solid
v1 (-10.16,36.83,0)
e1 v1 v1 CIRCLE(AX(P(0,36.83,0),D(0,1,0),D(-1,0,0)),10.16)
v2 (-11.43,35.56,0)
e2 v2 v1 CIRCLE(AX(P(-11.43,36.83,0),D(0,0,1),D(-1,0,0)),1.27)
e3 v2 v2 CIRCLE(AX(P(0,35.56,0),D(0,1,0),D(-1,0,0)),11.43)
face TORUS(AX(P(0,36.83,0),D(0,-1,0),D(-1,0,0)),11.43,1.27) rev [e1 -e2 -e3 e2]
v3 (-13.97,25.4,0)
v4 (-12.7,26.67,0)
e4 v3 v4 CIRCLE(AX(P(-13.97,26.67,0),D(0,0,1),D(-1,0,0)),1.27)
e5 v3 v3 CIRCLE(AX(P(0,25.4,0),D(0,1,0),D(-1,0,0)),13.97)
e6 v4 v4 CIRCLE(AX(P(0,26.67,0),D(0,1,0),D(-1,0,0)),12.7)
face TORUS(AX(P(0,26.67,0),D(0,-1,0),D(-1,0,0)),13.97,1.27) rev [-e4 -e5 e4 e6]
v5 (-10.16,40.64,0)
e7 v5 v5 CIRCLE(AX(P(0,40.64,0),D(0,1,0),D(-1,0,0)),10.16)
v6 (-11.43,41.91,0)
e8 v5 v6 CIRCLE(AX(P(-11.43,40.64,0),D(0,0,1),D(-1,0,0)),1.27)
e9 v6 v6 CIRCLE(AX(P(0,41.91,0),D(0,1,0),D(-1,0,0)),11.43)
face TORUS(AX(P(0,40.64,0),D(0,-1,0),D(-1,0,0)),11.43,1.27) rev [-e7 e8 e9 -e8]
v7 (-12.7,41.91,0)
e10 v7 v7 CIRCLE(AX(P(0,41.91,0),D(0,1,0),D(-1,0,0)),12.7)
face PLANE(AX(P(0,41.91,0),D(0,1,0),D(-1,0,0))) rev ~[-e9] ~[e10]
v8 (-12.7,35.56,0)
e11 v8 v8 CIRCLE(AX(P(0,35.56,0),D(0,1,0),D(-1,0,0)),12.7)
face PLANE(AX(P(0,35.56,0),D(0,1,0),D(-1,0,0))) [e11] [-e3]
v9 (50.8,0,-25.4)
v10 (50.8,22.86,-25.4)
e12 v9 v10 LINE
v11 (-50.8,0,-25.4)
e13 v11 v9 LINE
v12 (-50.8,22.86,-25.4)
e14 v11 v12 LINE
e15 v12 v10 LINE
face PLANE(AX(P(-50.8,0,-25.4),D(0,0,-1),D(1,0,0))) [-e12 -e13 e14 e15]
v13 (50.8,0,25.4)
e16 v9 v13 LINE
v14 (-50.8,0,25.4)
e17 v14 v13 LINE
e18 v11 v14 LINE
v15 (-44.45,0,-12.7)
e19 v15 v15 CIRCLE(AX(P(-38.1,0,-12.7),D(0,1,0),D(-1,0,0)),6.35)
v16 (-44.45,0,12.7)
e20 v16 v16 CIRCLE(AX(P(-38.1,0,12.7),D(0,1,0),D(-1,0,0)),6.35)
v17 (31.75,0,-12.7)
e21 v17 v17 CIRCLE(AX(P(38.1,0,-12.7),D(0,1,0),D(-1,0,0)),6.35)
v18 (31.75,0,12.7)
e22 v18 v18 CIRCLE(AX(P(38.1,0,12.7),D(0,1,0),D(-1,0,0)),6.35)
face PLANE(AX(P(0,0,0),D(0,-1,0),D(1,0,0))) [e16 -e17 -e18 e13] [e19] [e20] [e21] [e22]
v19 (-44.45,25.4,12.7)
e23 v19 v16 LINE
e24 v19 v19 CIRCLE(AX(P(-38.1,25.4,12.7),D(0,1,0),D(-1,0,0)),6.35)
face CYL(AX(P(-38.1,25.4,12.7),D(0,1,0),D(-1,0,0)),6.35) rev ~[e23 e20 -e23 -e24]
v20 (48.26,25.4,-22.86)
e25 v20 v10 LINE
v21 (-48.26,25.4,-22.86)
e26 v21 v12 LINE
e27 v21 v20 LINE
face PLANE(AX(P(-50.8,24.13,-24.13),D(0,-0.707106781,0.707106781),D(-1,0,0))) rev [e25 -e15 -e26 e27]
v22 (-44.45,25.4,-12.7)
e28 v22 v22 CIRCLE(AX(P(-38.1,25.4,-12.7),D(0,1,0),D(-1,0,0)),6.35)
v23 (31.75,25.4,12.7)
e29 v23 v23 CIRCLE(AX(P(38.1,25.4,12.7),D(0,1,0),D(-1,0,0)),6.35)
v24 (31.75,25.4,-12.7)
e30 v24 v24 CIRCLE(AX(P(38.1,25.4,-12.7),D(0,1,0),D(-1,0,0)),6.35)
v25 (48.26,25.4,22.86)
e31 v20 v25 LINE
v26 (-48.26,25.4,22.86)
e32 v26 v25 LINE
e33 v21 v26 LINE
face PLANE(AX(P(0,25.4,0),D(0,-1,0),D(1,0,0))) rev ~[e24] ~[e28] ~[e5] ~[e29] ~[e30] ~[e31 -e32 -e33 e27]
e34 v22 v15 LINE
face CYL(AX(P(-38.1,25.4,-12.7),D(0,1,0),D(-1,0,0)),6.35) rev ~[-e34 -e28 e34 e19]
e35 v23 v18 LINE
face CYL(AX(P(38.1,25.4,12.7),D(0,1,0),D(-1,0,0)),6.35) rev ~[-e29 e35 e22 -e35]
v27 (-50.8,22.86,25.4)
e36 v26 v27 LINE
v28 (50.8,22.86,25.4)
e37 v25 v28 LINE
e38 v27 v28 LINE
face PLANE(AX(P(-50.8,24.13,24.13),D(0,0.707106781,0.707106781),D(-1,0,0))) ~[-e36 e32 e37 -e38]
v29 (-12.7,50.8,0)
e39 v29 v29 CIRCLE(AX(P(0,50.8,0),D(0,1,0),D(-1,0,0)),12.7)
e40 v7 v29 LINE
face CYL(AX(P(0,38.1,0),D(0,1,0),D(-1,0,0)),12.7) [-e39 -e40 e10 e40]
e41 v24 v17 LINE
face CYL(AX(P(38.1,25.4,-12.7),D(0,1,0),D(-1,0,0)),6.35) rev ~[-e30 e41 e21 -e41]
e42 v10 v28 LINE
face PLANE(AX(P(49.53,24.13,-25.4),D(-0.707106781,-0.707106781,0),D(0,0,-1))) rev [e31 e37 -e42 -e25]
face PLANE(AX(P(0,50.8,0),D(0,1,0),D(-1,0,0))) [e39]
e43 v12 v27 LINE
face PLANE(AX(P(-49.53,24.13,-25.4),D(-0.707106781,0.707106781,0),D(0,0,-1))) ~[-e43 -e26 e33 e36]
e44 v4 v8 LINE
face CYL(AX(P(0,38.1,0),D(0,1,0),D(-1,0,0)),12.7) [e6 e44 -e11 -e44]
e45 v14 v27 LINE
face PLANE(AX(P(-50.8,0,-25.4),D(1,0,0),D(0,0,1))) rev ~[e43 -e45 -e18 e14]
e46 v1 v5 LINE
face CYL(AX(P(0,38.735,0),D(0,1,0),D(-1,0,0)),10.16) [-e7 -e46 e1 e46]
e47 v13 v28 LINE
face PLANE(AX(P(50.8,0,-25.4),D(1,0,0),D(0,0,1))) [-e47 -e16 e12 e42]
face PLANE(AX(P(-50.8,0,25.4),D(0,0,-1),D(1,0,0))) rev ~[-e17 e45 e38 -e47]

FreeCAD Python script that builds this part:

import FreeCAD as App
import Part
import Sketcher
from FreeCAD import Vector
Q = App.Units.Quantity


def edges_at(feature, points):
    """Names of the edges that pass closest to the given points."""
    edges = feature.Shape.Edges
    near = lambda p: min(range(len(edges)), key=lambda i: edges[i].distToShape(Part.Vertex(*p))[0])
    return sorted({f"Edge{near(p) + 1}" for p in points})


def add_polygon(sketch, points):
    """Adds a closed chain of lines whose ends are joined by coincident constraints."""
    first, n = sketch.GeometryCount, len(points)
    for a, b in zip(points, points[1:] + points[:1]):
        sketch.addGeometry(Part.LineSegment(App.Vector(*a, 0), App.Vector(*b, 0)), False)
    for i in range(n):
        sketch.addConstraint(Sketcher.Constraint("Coincident", first + i, 2, first + (i + 1) % n, 1))

doc = App.newDocument("Part")
params = doc.addObject("Spreadsheet::Sheet", "Params")
for row, (alias, value) in enumerate([
    ("sketch1_width", "4 in"),
    ("sketch1_height", "2 in"),
    ("pad1_length", "1 in"),
    ("sketch2_diameter", "0.5 in"),
    ("sketch3_height", "1 in"),
    ("sketch3_width", "0.5 in"),
    ("revolution_angle", "360 deg"),
    ("sketch4_height", "0.25 in"),
    ("groove_angle", "360 deg"),
    ("fillet_radius", "0.05 in"),
    ("chamfer_size", "0.1 in"),
], start=1):
    params.set(f"A{row}", alias)
    params.set(f"B{row}", "=" + value)
    params.setAlias(f"B{row}", alias)

body = doc.addObject("PartDesign::Body", "Body")

sketch1 = body.newObject("Sketcher::SketchObject", "Sketch")
sketch1.AttachmentSupport = (doc.getObject("XZ_Plane"), [""])
sketch1.MapMode = "FlatFace"
add_polygon(sketch1, [(-51, 25), (-51, -25), (51, -25), (51, 25)])
sketch1.addConstraint(Sketcher.Constraint("Vertical", 0))
sketch1.addConstraint(Sketcher.Constraint("Horizontal", 1))
sketch1.addConstraint(Sketcher.Constraint("Vertical", 2))
sketch1.addConstraint(Sketcher.Constraint("Horizontal", 3))
sketch1.addConstraint(Sketcher.Constraint("Symmetric", 0, 2, 2, 2, -1, 1))
sketch1.addConstraint(Sketcher.Constraint("DistanceX", 1, 1, 1, 2, Q("4 in")))
sketch1.addConstraint(Sketcher.Constraint("DistanceY", 0, 2, 0, 1, Q("2 in")))
sketch1.setExpression("Constraints[9]", "Params.sketch1_width")
sketch1.setExpression("Constraints[10]", "Params.sketch1_height")
pad1 = body.newObject("PartDesign::Pad", "Pad")
pad1.Profile = sketch1
pad1.setExpression("Length", "Params.pad1_length")
pad1.Reversed = True

sketch2 = body.newObject("Sketcher::SketchObject", "Sketch001")
sketch2.AttachmentSupport = (doc.getObject("XZ_Plane"), [""])
sketch2.MapMode = "FlatFace"
sketch2.AttachmentOffset = App.Placement(Vector(0, 0, -1 * 25.4), App.Rotation())
sketch2.addGeometry(Part.Circle(Vector(38, 13, 0), Vector(0, 0, 1), 6), False)
sketch2.addGeometry(Part.Circle(Vector(38, -13, 0), Vector(0, 0, 1), 6), False)
sketch2.addGeometry(Part.Circle(Vector(-38, 13, 0), Vector(0, 0, 1), 6), False)
sketch2.addGeometry(Part.Circle(Vector(-38, -13, 0), Vector(0, 0, 1), 6), False)
sketch2.addConstraint(Sketcher.Constraint("Equal", 0, 1))
sketch2.addConstraint(Sketcher.Constraint("Equal", 1, 2))
sketch2.addConstraint(Sketcher.Constraint("Equal", 2, 3))
sketch2.addConstraint(Sketcher.Constraint("Symmetric", 1, 3, 2, 3, -1, 1))
sketch2.addConstraint(Sketcher.Constraint("Symmetric", 0, 3, 3, 3, -1, 1))
sketch2.addConstraint(Sketcher.Constraint("Symmetric", 0, 3, 2, 3, -2))
sketch2.addConstraint(Sketcher.Constraint("Diameter", 0, Q("0.5 in")))
sketch2.addConstraint(Sketcher.Constraint("DistanceY", 1, 3, 0, 3, Q("1 in")))
sketch2.addConstraint(Sketcher.Constraint("DistanceX", 2, 3, 0, 3, Q("3 in")))
sketch2.setExpression("Constraints[6]", "Params.sketch2_diameter")
pocket1 = body.newObject("PartDesign::Pocket", "Pocket")
pocket1.Profile = sketch2
pocket1.Type = "ThroughAll"
pocket1.Reversed = True

sketch3 = body.newObject("Sketcher::SketchObject", "Sketch002")
sketch3.AttachmentSupport = (doc.getObject("XY_Plane"), [""])
sketch3.MapMode = "FlatFace"
add_polygon(sketch3, [(-13, 51), (-13, 25), (0, 25), (0, 51)])
sketch3.addConstraint(Sketcher.Constraint("Vertical", 0))
sketch3.addConstraint(Sketcher.Constraint("Horizontal", 1))
sketch3.addConstraint(Sketcher.Constraint("Vertical", 2))
sketch3.addConstraint(Sketcher.Constraint("Horizontal", 3))
sketch3.addConstraint(Sketcher.Constraint("PointOnObject", 1, 2, -2))
sketch3.addConstraint(Sketcher.Constraint("DistanceY", 0, 2, 0, 1, Q("1 in")))
sketch3.addConstraint(Sketcher.Constraint("DistanceX", 1, 1, 1, 2, Q("0.5 in")))
sketch3.addConstraint(Sketcher.Constraint("DistanceY", -1, 1, 0, 2, Q("1 in")))
sketch3.setExpression("Constraints[9]", "Params.sketch3_height")
sketch3.setExpression("Constraints[10]", "Params.sketch3_width")
revolution = body.newObject("PartDesign::Revolution", "Revolution")
revolution.Profile = sketch3
revolution.ReferenceAxis = (sketch3, ["V_Axis"])
revolution.setExpression("Angle", "Params.revolution_angle")

sketch4 = body.newObject("Sketcher::SketchObject", "Sketch003")
sketch4.AttachmentSupport = (doc.getObject("XY_Plane"), [""])
sketch4.MapMode = "FlatFace"
add_polygon(sketch4, [(-18, 42), (-18, 36), (-10, 36), (-10, 42)])
sketch4.addConstraint(Sketcher.Constraint("Vertical", 0))
sketch4.addConstraint(Sketcher.Constraint("Horizontal", 1))
sketch4.addConstraint(Sketcher.Constraint("Vertical", 2))
sketch4.addConstraint(Sketcher.Constraint("Horizontal", 3))
sketch4.addConstraint(Sketcher.Constraint("DistanceY", 0, 2, 0, 1, Q("0.25 in")))
sketch4.addConstraint(Sketcher.Constraint("DistanceY", -1, 1, 0, 2, Q("1.4 in")))
sketch4.addConstraint(Sketcher.Constraint("DistanceX", 1, 2, -1, 1, Q("0.4 in")))
sketch4.addConstraint(Sketcher.Constraint("DistanceX", 1, 1, 1, 2, Q("8.04679 mm")))
sketch4.setExpression("Constraints[8]", "Params.sketch4_height")
groove = body.newObject("PartDesign::Groove", "Groove")
groove.Profile = sketch4
groove.ReferenceAxis = (sketch4, ["V_Axis"])
groove.setExpression("Angle", "Params.groove_angle")
doc.recompute()

fillet = body.newObject("PartDesign::Fillet", "Fillet")
fillet.Base = (groove, edges_at(groove, [(12.7, 25.4, 0), (10.16, 35.56, 0), (10.16, 41.91, 0)]))
fillet.setExpression("Radius", "Params.fillet_radius")
doc.recompute()

chamfer = body.newObject("PartDesign::Chamfer", "Chamfer")
chamfer.Base = (fillet, edges_at(fillet, [
    (50.8, 25.4, 0),
    (0, 25.4, 25.4),
    (-50.8, 25.4, 0),
    (0, 25.4, -25.4),
]))
chamfer.setExpression("Size", "Params.chamfer_size")

doc.recompute()
